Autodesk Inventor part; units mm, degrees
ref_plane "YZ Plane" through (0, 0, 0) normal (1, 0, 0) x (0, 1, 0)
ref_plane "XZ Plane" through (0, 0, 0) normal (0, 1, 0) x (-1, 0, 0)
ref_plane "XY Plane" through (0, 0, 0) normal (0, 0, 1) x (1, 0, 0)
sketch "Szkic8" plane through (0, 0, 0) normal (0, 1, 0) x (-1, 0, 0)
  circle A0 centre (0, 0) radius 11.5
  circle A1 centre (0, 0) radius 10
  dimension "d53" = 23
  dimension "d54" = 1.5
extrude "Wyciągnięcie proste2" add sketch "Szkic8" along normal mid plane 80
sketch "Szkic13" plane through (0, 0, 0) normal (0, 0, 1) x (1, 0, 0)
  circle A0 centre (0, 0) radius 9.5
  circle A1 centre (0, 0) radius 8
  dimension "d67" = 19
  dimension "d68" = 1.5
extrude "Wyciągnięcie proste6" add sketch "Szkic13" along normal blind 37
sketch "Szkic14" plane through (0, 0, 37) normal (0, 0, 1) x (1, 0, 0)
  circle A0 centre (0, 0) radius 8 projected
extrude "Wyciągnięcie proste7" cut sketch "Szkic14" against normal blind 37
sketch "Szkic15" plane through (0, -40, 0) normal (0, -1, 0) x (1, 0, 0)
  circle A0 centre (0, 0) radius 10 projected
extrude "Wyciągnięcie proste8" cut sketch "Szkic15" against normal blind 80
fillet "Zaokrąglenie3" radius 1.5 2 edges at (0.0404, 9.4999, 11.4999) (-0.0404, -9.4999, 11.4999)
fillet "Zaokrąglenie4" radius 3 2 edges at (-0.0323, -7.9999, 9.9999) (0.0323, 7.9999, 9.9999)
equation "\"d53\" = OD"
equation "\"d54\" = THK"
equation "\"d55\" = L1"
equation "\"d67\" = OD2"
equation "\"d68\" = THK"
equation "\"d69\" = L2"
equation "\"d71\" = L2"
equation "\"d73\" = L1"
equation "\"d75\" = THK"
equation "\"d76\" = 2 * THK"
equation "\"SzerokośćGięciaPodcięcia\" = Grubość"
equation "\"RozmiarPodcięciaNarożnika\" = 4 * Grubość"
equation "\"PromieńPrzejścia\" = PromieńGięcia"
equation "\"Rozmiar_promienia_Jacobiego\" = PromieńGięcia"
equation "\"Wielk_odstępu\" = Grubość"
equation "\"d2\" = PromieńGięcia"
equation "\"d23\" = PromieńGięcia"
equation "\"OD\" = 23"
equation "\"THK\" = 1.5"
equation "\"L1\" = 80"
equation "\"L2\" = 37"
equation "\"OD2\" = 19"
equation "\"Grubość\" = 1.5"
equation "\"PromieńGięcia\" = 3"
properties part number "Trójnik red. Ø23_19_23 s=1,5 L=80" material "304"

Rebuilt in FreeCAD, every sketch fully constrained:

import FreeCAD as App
import Part
import Sketcher
Q = App.Units.Quantity


def edges_at(feature, points):
    """Names of the edges that pass closest to the given points."""
    edges = feature.Shape.Edges
    near = lambda p: min(range(len(edges)), key=lambda i: edges[i].distToShape(Part.Vertex(*p))[0])
    return sorted({f"Edge{near(p) + 1}" for p in points})

doc = App.newDocument("Part")
params = doc.addObject("Spreadsheet::Sheet", "Params")
for row, (alias, value) in enumerate([
    ("sketch1_diameter", "23 mm"),
    ("sketch1_diameter2", "20 mm"),
    ("pad1_length", "80 mm"),
    ("sketch2_diameter", "19 mm"),
    ("sketch2_diameter2", "16 mm"),
    ("pad2_length", "37 mm"),
    ("sketch3_diameter", "16 mm"),
    ("pocket1_length", "37 mm"),
    ("sketch4_diameter", "20 mm"),
    ("pocket2_length", "80 mm"),
    ("fillet_radius", "1.5 mm"),
    ("fillet2_radius", "3 mm"),
], start=1):
    params.set(f"A{row}", alias)
    params.set(f"B{row}", "=" + value)
    params.setAlias(f"B{row}", alias)

body = doc.addObject("PartDesign::Body", "Body")

sketch1 = body.newObject("Sketcher::SketchObject", "Sketch")
sketch1.AttachmentSupport = (doc.getObject("XZ_Plane"), [""])
sketch1.MapMode = "FlatFace"
sketch1.addGeometry([
    Part.Circle(App.Vector(0, 0, 0), App.Vector(0, 0, 1), 12),
    Part.Circle(App.Vector(0, 0, 0), App.Vector(0, 0, 1), 10),
], False)
sketch1.addConstraint([
    Sketcher.Constraint("Coincident", 0, 3, -1, 1),
    Sketcher.Constraint("Coincident", 1, 3, -1, 1),
    Sketcher.Constraint("Diameter", 0, Q("23 mm")),
    Sketcher.Constraint("Diameter", 1, Q("20 mm")),
])
sketch1.setExpression("Constraints[2]", "Params.sketch1_diameter")
sketch1.setExpression("Constraints[3]", "Params.sketch1_diameter2")
pad1 = body.newObject("PartDesign::Pad", "Pad")
pad1.Profile = sketch1
pad1.setExpression("Length", "Params.pad1_length")
pad1.Midplane = True

sketch2 = body.newObject("Sketcher::SketchObject", "Sketch001")
sketch2.AttachmentSupport = (doc.getObject("XY_Plane"), [""])
sketch2.MapMode = "FlatFace"
sketch2.addGeometry([
    Part.Circle(App.Vector(0, 0, 0), App.Vector(0, 0, 1), 10),
    Part.Circle(App.Vector(0, 0, 0), App.Vector(0, 0, 1), 8),
], False)
sketch2.addConstraint([
    Sketcher.Constraint("Coincident", 0, 3, -1, 1),
    Sketcher.Constraint("Coincident", 1, 3, -1, 1),
    Sketcher.Constraint("Diameter", 0, Q("19 mm")),
    Sketcher.Constraint("Diameter", 1, Q("16 mm")),
])
sketch2.setExpression("Constraints[2]", "Params.sketch2_diameter")
sketch2.setExpression("Constraints[3]", "Params.sketch2_diameter2")
pad2 = body.newObject("PartDesign::Pad", "Pad001")
pad2.Profile = sketch2
pad2.setExpression("Length", "Params.pad2_length")

sketch3 = body.newObject("Sketcher::SketchObject", "Sketch002")
sketch3.AttachmentSupport = (doc.getObject("XY_Plane"), [""])
sketch3.MapMode = "FlatFace"
sketch3.AttachmentOffset = App.Placement(App.Vector(0, 0, 37), App.Rotation())
sketch3.addGeometry(Part.Circle(App.Vector(0, 0, 0), App.Vector(0, 0, 1), 8), False)
sketch3.addConstraint([
    Sketcher.Constraint("Coincident", 0, 3, -1, 1),
    Sketcher.Constraint("Diameter", 0, Q("16 mm")),
])
sketch3.setExpression("Constraints[1]", "Params.sketch3_diameter")
pocket1 = body.newObject("PartDesign::Pocket", "Pocket")
pocket1.Profile = sketch3
pocket1.setExpression("Length", "Params.pocket1_length")

sketch4 = body.newObject("Sketcher::SketchObject", "Sketch003")
sketch4.AttachmentSupport = (doc.getObject("XZ_Plane"), [""])
sketch4.MapMode = "FlatFace"
sketch4.AttachmentOffset = App.Placement(App.Vector(0, 0, 40), App.Rotation())
sketch4.addGeometry(Part.Circle(App.Vector(0, 0, 0), App.Vector(0, 0, 1), 10), False)
sketch4.addConstraint([
    Sketcher.Constraint("Coincident", 0, 3, -1, 1),
    Sketcher.Constraint("Diameter", 0, Q("20 mm")),
])
sketch4.setExpression("Constraints[1]", "Params.sketch4_diameter")
pocket2 = body.newObject("PartDesign::Pocket", "Pocket001")
pocket2.Profile = sketch4
pocket2.setExpression("Length", "Params.pocket2_length")
doc.recompute()

fillet = body.newObject("PartDesign::Fillet", "Fillet")
fillet.Base = (pocket2, edges_at(pocket2, [(0.04, 9.5, 11.5), (-0.04, -9.5, 11.5)]))
fillet.setExpression("Radius", "Params.fillet_radius")
doc.recompute()

fillet2 = body.newObject("PartDesign::Fillet", "Fillet001")
fillet2.Base = (fillet, edges_at(fillet, [(-0.032, -8, 10), (0.032, 8, 10)]))
fillet2.setExpression("Radius", "Params.fillet2_radius")

doc.recompute()
